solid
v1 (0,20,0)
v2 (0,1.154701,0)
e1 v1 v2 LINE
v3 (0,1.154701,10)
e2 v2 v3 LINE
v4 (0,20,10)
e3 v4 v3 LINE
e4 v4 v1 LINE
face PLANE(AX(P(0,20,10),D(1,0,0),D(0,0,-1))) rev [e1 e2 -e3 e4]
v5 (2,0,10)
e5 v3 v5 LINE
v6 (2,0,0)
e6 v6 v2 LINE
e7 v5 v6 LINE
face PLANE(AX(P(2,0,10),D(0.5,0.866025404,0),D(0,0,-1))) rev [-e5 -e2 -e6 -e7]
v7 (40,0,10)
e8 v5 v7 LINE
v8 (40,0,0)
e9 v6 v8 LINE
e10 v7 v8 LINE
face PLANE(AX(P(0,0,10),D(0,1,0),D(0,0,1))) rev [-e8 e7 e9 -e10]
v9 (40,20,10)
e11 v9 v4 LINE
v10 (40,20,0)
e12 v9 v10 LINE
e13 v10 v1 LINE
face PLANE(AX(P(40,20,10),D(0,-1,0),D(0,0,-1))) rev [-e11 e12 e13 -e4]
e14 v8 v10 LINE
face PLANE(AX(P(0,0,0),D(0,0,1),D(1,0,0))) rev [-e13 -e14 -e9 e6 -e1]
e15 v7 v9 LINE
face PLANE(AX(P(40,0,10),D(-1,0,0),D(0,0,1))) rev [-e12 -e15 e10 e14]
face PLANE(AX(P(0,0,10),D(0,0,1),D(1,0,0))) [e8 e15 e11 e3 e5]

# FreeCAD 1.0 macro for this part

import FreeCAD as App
import Part
import Sketcher
from FreeCAD import Vector
Q = App.Units.Quantity


def edges_at(feature, points):
    """Names of the edges that pass closest to the given points."""
    edges = feature.Shape.Edges
    near = lambda p: min(range(len(edges)), key=lambda i: edges[i].distToShape(Part.Vertex(*p))[0])
    return sorted({f"Edge{near(p) + 1}" for p in points})

doc = App.newDocument("Part")
body = doc.addObject("PartDesign::Body", "Body")

sketch1 = body.newObject("Sketcher::SketchObject", "Sketch")
sketch1.AttachmentSupport = (doc.getObject("XY_Plane"), [""])
sketch1.MapMode = "FlatFace"
sketch1.addGeometry([
    Part.LineSegment(Vector(0, 20, 0), Vector(0, 0, 0)),
    Part.LineSegment(Vector(0, 0, 0), Vector(40, 0, 0)),
    Part.LineSegment(Vector(40, 0, 0), Vector(40, 20, 0)),
    Part.LineSegment(Vector(40, 20, 0), Vector(0, 20, 0)),
], False)
sketch1.addConstraint([
    Sketcher.Constraint("Coincident", 0, 2, 1, 1),
    Sketcher.Constraint("Coincident", 1, 2, 2, 1),
    Sketcher.Constraint("Coincident", 2, 2, 3, 1),
    Sketcher.Constraint("Coincident", 3, 2, 0, 1),
    Sketcher.Constraint("Vertical", 0),
    Sketcher.Constraint("Horizontal", 1),
    Sketcher.Constraint("Vertical", 2),
    Sketcher.Constraint("Horizontal", 3),
    Sketcher.Constraint("Coincident", 0, 2, -1, 1),
    Sketcher.Constraint("DistanceX", 1, 1, 1, 2, Q("40 mm")),
    Sketcher.Constraint("DistanceY", 0, 2, 0, 1, Q("20 mm")),
])
pad1 = body.newObject("PartDesign::Pad", "Pad")
pad1.Profile = sketch1
pad1.Length = 10
doc.recompute()

chamfer = body.newObject("PartDesign::Chamfer", "Chamfer")
chamfer.Base = (pad1, edges_at(pad1, [(0, 0, 5)]))
chamfer.ChamferType = "Two distances"
chamfer.Size = 1.154701
chamfer.Size2 = 2

doc.recompute()
